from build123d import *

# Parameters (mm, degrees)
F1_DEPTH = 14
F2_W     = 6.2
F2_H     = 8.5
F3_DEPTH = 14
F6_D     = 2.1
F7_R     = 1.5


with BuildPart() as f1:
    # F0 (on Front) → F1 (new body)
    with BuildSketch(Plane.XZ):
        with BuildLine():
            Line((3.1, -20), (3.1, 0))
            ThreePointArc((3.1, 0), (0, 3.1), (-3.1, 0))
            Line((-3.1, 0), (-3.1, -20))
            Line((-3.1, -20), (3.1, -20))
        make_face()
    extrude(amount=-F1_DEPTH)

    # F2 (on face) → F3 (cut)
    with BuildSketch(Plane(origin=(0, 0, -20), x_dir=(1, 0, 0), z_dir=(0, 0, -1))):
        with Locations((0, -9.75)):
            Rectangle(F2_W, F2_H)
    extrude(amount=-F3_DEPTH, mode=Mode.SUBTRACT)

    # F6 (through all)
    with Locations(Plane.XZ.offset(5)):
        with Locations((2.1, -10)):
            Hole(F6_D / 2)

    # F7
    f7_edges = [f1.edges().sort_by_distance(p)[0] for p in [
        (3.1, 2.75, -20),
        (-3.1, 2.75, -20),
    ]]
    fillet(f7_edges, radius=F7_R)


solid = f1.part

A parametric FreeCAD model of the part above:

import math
import FreeCAD as App
import Part
import Sketcher
from FreeCAD import Vector


def edges_at(feature, points):
    """Names of the edges that pass closest to the given points."""
    edges = feature.Shape.Edges
    near = lambda p: min(range(len(edges)), key=lambda i: edges[i].distToShape(Part.Vertex(*p))[0])
    return sorted({f"Edge{near(p) + 1}" for p in points})


def add_polygon(sketch, points):
    """Adds a closed chain of lines whose ends are joined by coincident constraints."""
    first, n = sketch.GeometryCount, len(points)
    for a, b in zip(points, points[1:] + points[:1]):
        sketch.addGeometry(Part.LineSegment(App.Vector(*a, 0), App.Vector(*b, 0)), False)
    for i in range(n):
        sketch.addConstraint(Sketcher.Constraint("Coincident", first + i, 2, first + (i + 1) % n, 1))

doc = App.newDocument("Part")
body = doc.addObject("PartDesign::Body", "Body")

sketch1 = doc.addObject("Sketcher::SketchObject", "Sketch")
body.addObject(sketch1)
sketch1.AttachmentSupport = (doc.XZ_Plane, [""])
sketch1.MapMode = "FlatFace"
sketch1.addGeometry(Part.LineSegment(Vector(3.1, -20, 0), Vector(3.1, 0, 0)), False)
sketch1.addGeometry(Part.ArcOfCircle(Part.Circle(Vector(0, 0, 0), Vector(0, 0, 1), 3.1), math.radians(0), math.radians(180)), False)
sketch1.addGeometry(Part.LineSegment(Vector(-3.1, 0, 0), Vector(-3.1, -20, 0)), False)
sketch1.addGeometry(Part.LineSegment(Vector(-3.1, -20, 0), Vector(3.1, -20, 0)), False)
sketch1.addConstraint(Sketcher.Constraint("Tangent", 0, 2, 1, 1))
sketch1.addConstraint(Sketcher.Constraint("Tangent", 1, 2, 2, 1))
sketch1.addConstraint(Sketcher.Constraint("Coincident", 2, 2, 3, 1))
sketch1.addConstraint(Sketcher.Constraint("Coincident", 3, 2, 0, 1))
sketch1.addConstraint(Sketcher.Constraint("Vertical", 0))
sketch1.addConstraint(Sketcher.Constraint("Vertical", 2))
sketch1.addConstraint(Sketcher.Constraint("Horizontal", 3))
sketch1.addConstraint(Sketcher.Constraint("Coincident", 1, 3, -1, 1))
sketch1.addConstraint(Sketcher.Constraint("Radius", 1, 3.1))
sketch1.addConstraint(Sketcher.Constraint("DistanceY", 0, 1, 0, 2, 20.0))
pad1 = doc.addObject("PartDesign::Pad", "Pad")
body.addObject(pad1)
pad1.Profile = sketch1
pad1.Length = 14
pad1.Reversed = True

sketch2 = doc.addObject("Sketcher::SketchObject", "Sketch001")
body.addObject(sketch2)
sketch2.AttachmentSupport = (doc.XY_Plane, [""])
sketch2.MapMode = "FlatFace"
sketch2.AttachmentOffset = App.Placement(Vector(0, 0, -20), App.Rotation())
add_polygon(sketch2, [(-3, 6), (-3, 14), (3, 14), (3, 6)])
sketch2.addConstraint(Sketcher.Constraint("Vertical", 0))
sketch2.addConstraint(Sketcher.Constraint("Horizontal", 1))
sketch2.addConstraint(Sketcher.Constraint("Vertical", 2))
sketch2.addConstraint(Sketcher.Constraint("Horizontal", 3))
sketch2.addConstraint(Sketcher.Constraint("DistanceX", 1, 1, 1, 2, 6.2))
sketch2.addConstraint(Sketcher.Constraint("DistanceY", 0, 1, 0, 2, 8.5))
sketch2.addConstraint(Sketcher.Constraint("DistanceY", -1, 1, 0, 2, 14.0))
sketch2.addConstraint(Sketcher.Constraint("DistanceX", 0, 2, -1, 1, 3.1))
pocket1 = doc.addObject("PartDesign::Pocket", "Pocket")
body.addObject(pocket1)
pocket1.Profile = sketch2
pocket1.Length = 14
pocket1.Reversed = True

sketch3 = doc.addObject("Sketcher::SketchObject", "Sketch002")
body.addObject(sketch3)
sketch3.AttachmentSupport = (doc.XZ_Plane, [""])
sketch3.MapMode = "FlatFace"
sketch3.AttachmentOffset = App.Placement(Vector(0, 0, 5), App.Rotation())
sketch3.addGeometry(Part.Circle(Vector(2.1, -10, 0), Vector(0, 0, 1), 1.1), False)
sketch3.addConstraint(Sketcher.Constraint("Diameter", 0, 2.1))
sketch3.addConstraint(Sketcher.Constraint("DistanceY", 0, 3, -1, 1, 10.0))
sketch3.addConstraint(Sketcher.Constraint("DistanceX", -1, 1, 0, 3, 2.1))
doc.recompute()
hole = doc.addObject("PartDesign::Hole", "Hole")
body.addObject(hole)
hole.Profile = sketch3
hole.ThreadType = "None"
hole.Diameter = 2.1
hole.DepthType = "ThroughAll"
doc.recompute()

fillet = doc.addObject("PartDesign::Fillet", "Fillet")
body.addObject(fillet)
fillet.Base = (hole, edges_at(hole, [(3.1, 2.75, -20), (-3.1, 2.75, -20)]))
fillet.Radius = 1.5

doc.recompute()
